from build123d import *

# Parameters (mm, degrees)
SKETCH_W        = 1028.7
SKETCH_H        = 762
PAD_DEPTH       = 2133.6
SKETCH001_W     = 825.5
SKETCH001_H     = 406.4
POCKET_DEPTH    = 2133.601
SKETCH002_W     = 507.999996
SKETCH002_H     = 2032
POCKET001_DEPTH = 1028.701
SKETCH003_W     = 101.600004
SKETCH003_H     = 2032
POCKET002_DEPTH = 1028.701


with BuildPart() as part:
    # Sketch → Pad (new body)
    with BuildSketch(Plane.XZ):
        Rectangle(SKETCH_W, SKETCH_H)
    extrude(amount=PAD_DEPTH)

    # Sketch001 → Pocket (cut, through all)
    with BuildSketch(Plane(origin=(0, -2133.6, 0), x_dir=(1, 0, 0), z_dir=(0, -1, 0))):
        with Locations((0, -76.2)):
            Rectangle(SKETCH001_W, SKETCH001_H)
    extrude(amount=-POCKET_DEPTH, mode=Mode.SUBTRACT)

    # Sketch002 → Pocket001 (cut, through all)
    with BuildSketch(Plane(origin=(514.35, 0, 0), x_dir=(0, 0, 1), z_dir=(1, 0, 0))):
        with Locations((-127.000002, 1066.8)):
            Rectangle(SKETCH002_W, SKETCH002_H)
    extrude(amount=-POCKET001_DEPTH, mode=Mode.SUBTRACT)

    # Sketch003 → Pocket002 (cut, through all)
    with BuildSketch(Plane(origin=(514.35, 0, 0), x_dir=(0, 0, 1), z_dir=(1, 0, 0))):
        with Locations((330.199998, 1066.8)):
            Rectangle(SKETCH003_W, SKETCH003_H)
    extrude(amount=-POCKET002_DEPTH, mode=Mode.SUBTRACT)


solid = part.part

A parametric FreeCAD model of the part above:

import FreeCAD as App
import Part
import Sketcher
Q = App.Units.Quantity


def add_polygon(sketch, points):
    """Adds a closed chain of lines whose ends are joined by coincident constraints."""
    first, n = sketch.GeometryCount, len(points)
    for a, b in zip(points, points[1:] + points[:1]):
        sketch.addGeometry(Part.LineSegment(App.Vector(*a, 0), App.Vector(*b, 0)), False)
    for i in range(n):
        sketch.addConstraint(Sketcher.Constraint("Coincident", first + i, 2, first + (i + 1) % n, 1))

doc = App.newDocument("Part")
body = doc.addObject("PartDesign::Body", "Body")

# Sketch on XZ plane
sketch1 = body.newObject("Sketcher::SketchObject", "Sketch")
sketch1.AttachmentSupport = (doc.getObject("XZ_Plane"), [""])
sketch1.MapMode = "FlatFace"
add_polygon(sketch1, [(-514, 381), (-514, -381), (514, -381), (514, 381)])  # lines 0-3
sketch1.addConstraint([
    Sketcher.Constraint("Vertical", 0),
    Sketcher.Constraint("Horizontal", 1),
    Sketcher.Constraint("Vertical", 2),
    Sketcher.Constraint("Horizontal", 3),
    Sketcher.Constraint("Symmetric", 0, 2, 2, 2, -1, 1),
    Sketcher.Constraint("DistanceY", 0, 2, 0, 1, Q("30 in")),
    Sketcher.Constraint("DistanceX", 1, 1, 1, 2, Q("40.5 in")),
])
pad1 = body.newObject("PartDesign::Pad", "Pad")
pad1.Profile = sketch1
pad1.Length = Q("84 in")

# Sketch on XZ plane
sketch2 = body.newObject("Sketcher::SketchObject", "Sketch001")
sketch2.AttachmentSupport = (doc.getObject("XZ_Plane"), [""])
sketch2.MapMode = "FlatFace"
sketch2.AttachmentOffset = App.Placement(App.Vector(0, 0, 84 * 25.4), App.Rotation())
add_polygon(sketch2, [(-413, 127), (-413, -279), (413, -279), (413, 127)])  # lines 0-3
sketch2.addConstraint([
    Sketcher.Constraint("Vertical", 0),
    Sketcher.Constraint("Horizontal", 1),
    Sketcher.Constraint("Vertical", 2),
    Sketcher.Constraint("Horizontal", 3),
    Sketcher.Constraint("DistanceY", 0, 2, 0, 1, Q("16 in")),
    Sketcher.Constraint("DistanceX", 1, 1, 1, 2, Q("32.5 in")),
    Sketcher.Constraint("DistanceY", 0, 2, -1, 1, Q("11 in")),
    Sketcher.Constraint("DistanceX", 0, 2, -1, 1, Q("16.25 in")),
])
pocket1 = body.newObject("PartDesign::Pocket", "Pocket")
pocket1.Profile = sketch2
pocket1.Type = "ThroughAll"

# Sketch on YZ plane
sketch3 = body.newObject("Sketcher::SketchObject", "Sketch002")
sketch3.AttachmentSupport = (doc.getObject("YZ_Plane"), [""])
sketch3.MapMode = "FlatFace"
sketch3.AttachmentOffset = App.Placement(App.Vector(0, 0, 20.25 * 25.4), App.Rotation())
add_polygon(sketch3, [(-2083, -381), (-51, -381), (-51, 127), (-2083, 127)])  # lines 0-3
sketch3.addConstraint([
    Sketcher.Constraint("Horizontal", 0),
    Sketcher.Constraint("Vertical", 1),
    Sketcher.Constraint("Horizontal", 2),
    Sketcher.Constraint("Vertical", 3),
    Sketcher.Constraint("DistanceX", 0, 1, 0, 2, Q("80 in")),
    Sketcher.Constraint("DistanceY", 1, 1, 1, 2, Q("19.9999998 in")),
    Sketcher.Constraint("DistanceX", 0, 2, -1, 1, Q("2 in")),
    Sketcher.Constraint("DistanceY", 0, 2, -1, 1, Q("15 in")),
])
pocket2 = body.newObject("PartDesign::Pocket", "Pocket001")
pocket2.Profile = sketch3
pocket2.Type = "ThroughAll"

# Sketch on YZ plane
sketch4 = body.newObject("Sketcher::SketchObject", "Sketch003")
sketch4.AttachmentSupport = (doc.getObject("YZ_Plane"), [""])
sketch4.MapMode = "FlatFace"
sketch4.AttachmentOffset = App.Placement(App.Vector(0, 0, 20.25 * 25.4), App.Rotation())
add_polygon(sketch4, [(-2083, 279), (-51, 279), (-51, 381), (-2083, 381)])  # lines 0-3
sketch4.addConstraint([
    Sketcher.Constraint("Horizontal", 0),
    Sketcher.Constraint("Vertical", 1),
    Sketcher.Constraint("Horizontal", 2),
    Sketcher.Constraint("Vertical", 3),
    Sketcher.Constraint("DistanceX", 0, 1, 0, 2, Q("80 in")),
    Sketcher.Constraint("DistanceY", 1, 1, 1, 2, Q("4.0000002 in")),
    Sketcher.Constraint("DistanceX", 0, 2, -1, 1, Q("2 in")),
    Sketcher.Constraint("DistanceY", -1, 1, 0, 2, Q("10.9999998 in")),
])
pocket3 = body.newObject("PartDesign::Pocket", "Pocket002")
pocket3.Profile = sketch4
pocket3.Type = "ThroughAll"

doc.recompute()
